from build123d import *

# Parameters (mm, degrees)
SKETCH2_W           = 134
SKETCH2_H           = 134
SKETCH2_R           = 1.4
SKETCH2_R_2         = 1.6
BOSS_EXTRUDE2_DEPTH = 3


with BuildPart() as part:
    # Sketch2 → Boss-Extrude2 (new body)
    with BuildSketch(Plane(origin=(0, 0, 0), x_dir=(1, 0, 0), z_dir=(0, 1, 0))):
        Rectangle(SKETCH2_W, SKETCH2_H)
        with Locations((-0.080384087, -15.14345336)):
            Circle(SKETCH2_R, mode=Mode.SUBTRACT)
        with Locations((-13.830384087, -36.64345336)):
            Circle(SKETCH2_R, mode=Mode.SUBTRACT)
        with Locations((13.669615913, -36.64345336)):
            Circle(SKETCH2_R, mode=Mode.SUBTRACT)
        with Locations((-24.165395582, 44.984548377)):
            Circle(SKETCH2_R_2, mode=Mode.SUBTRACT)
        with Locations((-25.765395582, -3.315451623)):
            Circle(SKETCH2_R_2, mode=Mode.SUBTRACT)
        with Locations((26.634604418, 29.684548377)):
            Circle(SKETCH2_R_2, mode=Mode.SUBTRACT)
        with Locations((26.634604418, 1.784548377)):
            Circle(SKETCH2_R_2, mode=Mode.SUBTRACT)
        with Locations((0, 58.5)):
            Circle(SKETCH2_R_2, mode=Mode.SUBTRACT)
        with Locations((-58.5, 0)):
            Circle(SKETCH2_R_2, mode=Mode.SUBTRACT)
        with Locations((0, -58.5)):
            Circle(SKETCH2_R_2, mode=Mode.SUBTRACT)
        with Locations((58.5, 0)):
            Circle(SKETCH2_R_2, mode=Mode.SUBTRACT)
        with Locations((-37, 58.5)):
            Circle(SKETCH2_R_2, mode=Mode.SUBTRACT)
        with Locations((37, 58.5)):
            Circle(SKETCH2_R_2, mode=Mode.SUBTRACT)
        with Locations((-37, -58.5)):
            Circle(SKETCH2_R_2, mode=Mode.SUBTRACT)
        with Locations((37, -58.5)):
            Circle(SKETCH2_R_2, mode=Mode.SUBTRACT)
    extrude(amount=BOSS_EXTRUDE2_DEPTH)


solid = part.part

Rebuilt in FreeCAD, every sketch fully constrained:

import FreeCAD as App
import Part
import Sketcher
from FreeCAD import Vector
Q = App.Units.Quantity

doc = App.newDocument("Part")
body = doc.addObject("PartDesign::Body", "Body")

# Sketch on XZ plane
sketch1 = body.newObject("Sketcher::SketchObject", "Sketch")
sketch1.AttachmentSupport = (doc.getObject("XZ_Plane"), [""])
sketch1.MapMode = "FlatFace"
sketch1.addGeometry([
    Part.LineSegment(Vector(-67, -67, 0), Vector(-67, 67, 0)),  # 0
    Part.LineSegment(Vector(-67, 67, 0), Vector(67, 67, 0)),  # 1
    Part.LineSegment(Vector(67, 67, 0), Vector(67, -67, 0)),  # 2
    Part.LineSegment(Vector(67, -67, 0), Vector(-67, -67, 0)),  # 3
    Part.Circle(Vector(-37, 58.5, 0), Vector(0, 0, 1), 1.6),  # 4
    Part.Circle(Vector(-13.8, 36.6, 0), Vector(0, 0, 1), 1.4),  # 5
    Part.Circle(Vector(-0.1, 15.1, 0), Vector(0, 0, 1), 1.4),  # 6
    Part.Circle(Vector(-25.8, 3.3, 0), Vector(0, 0, 1), 1.6),  # 7
    Part.Circle(Vector(0, 58.5, 0), Vector(0, 0, 1), 1.6),  # 8
    Part.Circle(Vector(13.7, 36.6, 0), Vector(0, 0, 1), 1.4),  # 9
    Part.Circle(Vector(37, 58.5, 0), Vector(0, 0, 1), 1.6),  # 10
    Part.Circle(Vector(-58.5, 0, 0), Vector(0, 0, 1), 1.6),  # 11
    Part.Circle(Vector(-37, -58.5, 0), Vector(0, 0, 1), 1.6),  # 12
    Part.Circle(Vector(-24.2, -45, 0), Vector(0, 0, 1), 1.6),  # 13
    Part.Circle(Vector(26.6, -1.8, 0), Vector(0, 0, 1), 1.6),  # 14
    Part.Circle(Vector(26.6, -29.7, 0), Vector(0, 0, 1), 1.6),  # 15
    Part.Circle(Vector(58.5, 0, 0), Vector(0, 0, 1), 1.6),  # 16
    Part.Circle(Vector(0, -58.5, 0), Vector(0, 0, 1), 1.6),  # 17
    Part.Circle(Vector(37, -58.5, 0), Vector(0, 0, 1), 1.6),  # 18
], False)
sketch1.addConstraint([
    Sketcher.Constraint("Coincident", 0, 2, 1, 1),
    Sketcher.Constraint("Coincident", 1, 2, 2, 1),
    Sketcher.Constraint("Coincident", 2, 2, 3, 1),
    Sketcher.Constraint("Coincident", 3, 2, 0, 1),
    Sketcher.Constraint("Vertical", 0),
    Sketcher.Constraint("Horizontal", 1),
    Sketcher.Constraint("Vertical", 2),
    Sketcher.Constraint("Horizontal", 3),
    Sketcher.Constraint("Equal", 5, 6),
    Sketcher.Constraint("Equal", 4, 7),
    Sketcher.Constraint("Equal", 7, 8),
    Sketcher.Constraint("Equal", 6, 9),
    Sketcher.Constraint("Equal", 8, 10),
    Sketcher.Constraint("Equal", 10, 11),
    Sketcher.Constraint("Equal", 11, 12),
    Sketcher.Constraint("Equal", 12, 13),
    Sketcher.Constraint("Equal", 13, 14),
    Sketcher.Constraint("Equal", 14, 15),
    Sketcher.Constraint("Equal", 15, 16),
    Sketcher.Constraint("Equal", 16, 17),
    Sketcher.Constraint("Equal", 17, 18),
    Sketcher.Constraint("Symmetric", 10, 3, 12, 3, -1, 1),
    Sketcher.Constraint("Symmetric", 11, 3, 16, 3, -1, 1),
    Sketcher.Constraint("Symmetric", 8, 3, 17, 3, -1, 1),
    Sketcher.Constraint("Symmetric", 4, 3, 18, 3, -1, 1),
    Sketcher.Constraint("Symmetric", 0, 2, 2, 2, -1, 1),
    Sketcher.Constraint("Symmetric", 4, 3, 10, 3, -2),
    Sketcher.Constraint("PointOnObject", 8, 3, -2),
    Sketcher.Constraint("PointOnObject", 11, 3, -1),
    Sketcher.Constraint("Horizontal", 4, 3, 8, 3),
    Sketcher.Constraint("Horizontal", 5, 3, 9, 3),
    Sketcher.Constraint("Vertical", 14, 3, 15, 3),
    Sketcher.Constraint("Equal", 3, 0),
    Sketcher.Constraint("Diameter", 4, Q("3.2 mm")),
    Sketcher.Constraint("Diameter", 5, Q("2.8 mm")),
    Sketcher.Constraint("DistanceX", 1, 1, 1, 2, Q("134 mm")),
    Sketcher.Constraint("DistanceX", 4, 3, -1, 1, Q("37 mm")),
    Sketcher.Constraint("DistanceY", 15, 3, 7, 3, Q("33 mm")),
    Sketcher.Constraint("DistanceY", -1, 1, 4, 3, Q("58.5 mm")),
    Sketcher.Constraint("DistanceX", 11, 3, -1, 1, Q("58.5 mm")),
    Sketcher.Constraint("DistanceY", 6, 3, 5, 3, Q("21.5 mm")),
    Sketcher.Constraint("DistanceX", 5, 3, 9, 3, Q("27.5 mm")),
    Sketcher.Constraint("DistanceX", 7, 3, 13, 3, Q("1.6 mm")),
    Sketcher.Constraint("DistanceY", 13, 3, 7, 3, Q("48.3 mm")),
    Sketcher.Constraint("DistanceX", 7, 3, 14, 3, Q("52.4 mm")),
    Sketcher.Constraint("DistanceY", 14, 3, 7, 3, Q("5.1 mm")),
    Sketcher.Constraint("DistanceX", 5, 3, 6, 3, Q("13.75 mm")),
    Sketcher.Constraint("DistanceY", 7, 3, 6, 3, Q("11.828002 mm")),
    Sketcher.Constraint("DistanceY", -1, 1, 7, 3, Q("3.315452 mm")),
    Sketcher.Constraint("DistanceX", 7, 3, 6, 3, Q("25.685011 mm")),
    Sketcher.Constraint("DistanceX", 5, 3, -1, 1, Q("13.830384 mm")),
])
pad1 = body.newObject("PartDesign::Pad", "Pad")
pad1.Profile = sketch1
pad1.Length = 3
pad1.Reversed = True

doc.recompute()
